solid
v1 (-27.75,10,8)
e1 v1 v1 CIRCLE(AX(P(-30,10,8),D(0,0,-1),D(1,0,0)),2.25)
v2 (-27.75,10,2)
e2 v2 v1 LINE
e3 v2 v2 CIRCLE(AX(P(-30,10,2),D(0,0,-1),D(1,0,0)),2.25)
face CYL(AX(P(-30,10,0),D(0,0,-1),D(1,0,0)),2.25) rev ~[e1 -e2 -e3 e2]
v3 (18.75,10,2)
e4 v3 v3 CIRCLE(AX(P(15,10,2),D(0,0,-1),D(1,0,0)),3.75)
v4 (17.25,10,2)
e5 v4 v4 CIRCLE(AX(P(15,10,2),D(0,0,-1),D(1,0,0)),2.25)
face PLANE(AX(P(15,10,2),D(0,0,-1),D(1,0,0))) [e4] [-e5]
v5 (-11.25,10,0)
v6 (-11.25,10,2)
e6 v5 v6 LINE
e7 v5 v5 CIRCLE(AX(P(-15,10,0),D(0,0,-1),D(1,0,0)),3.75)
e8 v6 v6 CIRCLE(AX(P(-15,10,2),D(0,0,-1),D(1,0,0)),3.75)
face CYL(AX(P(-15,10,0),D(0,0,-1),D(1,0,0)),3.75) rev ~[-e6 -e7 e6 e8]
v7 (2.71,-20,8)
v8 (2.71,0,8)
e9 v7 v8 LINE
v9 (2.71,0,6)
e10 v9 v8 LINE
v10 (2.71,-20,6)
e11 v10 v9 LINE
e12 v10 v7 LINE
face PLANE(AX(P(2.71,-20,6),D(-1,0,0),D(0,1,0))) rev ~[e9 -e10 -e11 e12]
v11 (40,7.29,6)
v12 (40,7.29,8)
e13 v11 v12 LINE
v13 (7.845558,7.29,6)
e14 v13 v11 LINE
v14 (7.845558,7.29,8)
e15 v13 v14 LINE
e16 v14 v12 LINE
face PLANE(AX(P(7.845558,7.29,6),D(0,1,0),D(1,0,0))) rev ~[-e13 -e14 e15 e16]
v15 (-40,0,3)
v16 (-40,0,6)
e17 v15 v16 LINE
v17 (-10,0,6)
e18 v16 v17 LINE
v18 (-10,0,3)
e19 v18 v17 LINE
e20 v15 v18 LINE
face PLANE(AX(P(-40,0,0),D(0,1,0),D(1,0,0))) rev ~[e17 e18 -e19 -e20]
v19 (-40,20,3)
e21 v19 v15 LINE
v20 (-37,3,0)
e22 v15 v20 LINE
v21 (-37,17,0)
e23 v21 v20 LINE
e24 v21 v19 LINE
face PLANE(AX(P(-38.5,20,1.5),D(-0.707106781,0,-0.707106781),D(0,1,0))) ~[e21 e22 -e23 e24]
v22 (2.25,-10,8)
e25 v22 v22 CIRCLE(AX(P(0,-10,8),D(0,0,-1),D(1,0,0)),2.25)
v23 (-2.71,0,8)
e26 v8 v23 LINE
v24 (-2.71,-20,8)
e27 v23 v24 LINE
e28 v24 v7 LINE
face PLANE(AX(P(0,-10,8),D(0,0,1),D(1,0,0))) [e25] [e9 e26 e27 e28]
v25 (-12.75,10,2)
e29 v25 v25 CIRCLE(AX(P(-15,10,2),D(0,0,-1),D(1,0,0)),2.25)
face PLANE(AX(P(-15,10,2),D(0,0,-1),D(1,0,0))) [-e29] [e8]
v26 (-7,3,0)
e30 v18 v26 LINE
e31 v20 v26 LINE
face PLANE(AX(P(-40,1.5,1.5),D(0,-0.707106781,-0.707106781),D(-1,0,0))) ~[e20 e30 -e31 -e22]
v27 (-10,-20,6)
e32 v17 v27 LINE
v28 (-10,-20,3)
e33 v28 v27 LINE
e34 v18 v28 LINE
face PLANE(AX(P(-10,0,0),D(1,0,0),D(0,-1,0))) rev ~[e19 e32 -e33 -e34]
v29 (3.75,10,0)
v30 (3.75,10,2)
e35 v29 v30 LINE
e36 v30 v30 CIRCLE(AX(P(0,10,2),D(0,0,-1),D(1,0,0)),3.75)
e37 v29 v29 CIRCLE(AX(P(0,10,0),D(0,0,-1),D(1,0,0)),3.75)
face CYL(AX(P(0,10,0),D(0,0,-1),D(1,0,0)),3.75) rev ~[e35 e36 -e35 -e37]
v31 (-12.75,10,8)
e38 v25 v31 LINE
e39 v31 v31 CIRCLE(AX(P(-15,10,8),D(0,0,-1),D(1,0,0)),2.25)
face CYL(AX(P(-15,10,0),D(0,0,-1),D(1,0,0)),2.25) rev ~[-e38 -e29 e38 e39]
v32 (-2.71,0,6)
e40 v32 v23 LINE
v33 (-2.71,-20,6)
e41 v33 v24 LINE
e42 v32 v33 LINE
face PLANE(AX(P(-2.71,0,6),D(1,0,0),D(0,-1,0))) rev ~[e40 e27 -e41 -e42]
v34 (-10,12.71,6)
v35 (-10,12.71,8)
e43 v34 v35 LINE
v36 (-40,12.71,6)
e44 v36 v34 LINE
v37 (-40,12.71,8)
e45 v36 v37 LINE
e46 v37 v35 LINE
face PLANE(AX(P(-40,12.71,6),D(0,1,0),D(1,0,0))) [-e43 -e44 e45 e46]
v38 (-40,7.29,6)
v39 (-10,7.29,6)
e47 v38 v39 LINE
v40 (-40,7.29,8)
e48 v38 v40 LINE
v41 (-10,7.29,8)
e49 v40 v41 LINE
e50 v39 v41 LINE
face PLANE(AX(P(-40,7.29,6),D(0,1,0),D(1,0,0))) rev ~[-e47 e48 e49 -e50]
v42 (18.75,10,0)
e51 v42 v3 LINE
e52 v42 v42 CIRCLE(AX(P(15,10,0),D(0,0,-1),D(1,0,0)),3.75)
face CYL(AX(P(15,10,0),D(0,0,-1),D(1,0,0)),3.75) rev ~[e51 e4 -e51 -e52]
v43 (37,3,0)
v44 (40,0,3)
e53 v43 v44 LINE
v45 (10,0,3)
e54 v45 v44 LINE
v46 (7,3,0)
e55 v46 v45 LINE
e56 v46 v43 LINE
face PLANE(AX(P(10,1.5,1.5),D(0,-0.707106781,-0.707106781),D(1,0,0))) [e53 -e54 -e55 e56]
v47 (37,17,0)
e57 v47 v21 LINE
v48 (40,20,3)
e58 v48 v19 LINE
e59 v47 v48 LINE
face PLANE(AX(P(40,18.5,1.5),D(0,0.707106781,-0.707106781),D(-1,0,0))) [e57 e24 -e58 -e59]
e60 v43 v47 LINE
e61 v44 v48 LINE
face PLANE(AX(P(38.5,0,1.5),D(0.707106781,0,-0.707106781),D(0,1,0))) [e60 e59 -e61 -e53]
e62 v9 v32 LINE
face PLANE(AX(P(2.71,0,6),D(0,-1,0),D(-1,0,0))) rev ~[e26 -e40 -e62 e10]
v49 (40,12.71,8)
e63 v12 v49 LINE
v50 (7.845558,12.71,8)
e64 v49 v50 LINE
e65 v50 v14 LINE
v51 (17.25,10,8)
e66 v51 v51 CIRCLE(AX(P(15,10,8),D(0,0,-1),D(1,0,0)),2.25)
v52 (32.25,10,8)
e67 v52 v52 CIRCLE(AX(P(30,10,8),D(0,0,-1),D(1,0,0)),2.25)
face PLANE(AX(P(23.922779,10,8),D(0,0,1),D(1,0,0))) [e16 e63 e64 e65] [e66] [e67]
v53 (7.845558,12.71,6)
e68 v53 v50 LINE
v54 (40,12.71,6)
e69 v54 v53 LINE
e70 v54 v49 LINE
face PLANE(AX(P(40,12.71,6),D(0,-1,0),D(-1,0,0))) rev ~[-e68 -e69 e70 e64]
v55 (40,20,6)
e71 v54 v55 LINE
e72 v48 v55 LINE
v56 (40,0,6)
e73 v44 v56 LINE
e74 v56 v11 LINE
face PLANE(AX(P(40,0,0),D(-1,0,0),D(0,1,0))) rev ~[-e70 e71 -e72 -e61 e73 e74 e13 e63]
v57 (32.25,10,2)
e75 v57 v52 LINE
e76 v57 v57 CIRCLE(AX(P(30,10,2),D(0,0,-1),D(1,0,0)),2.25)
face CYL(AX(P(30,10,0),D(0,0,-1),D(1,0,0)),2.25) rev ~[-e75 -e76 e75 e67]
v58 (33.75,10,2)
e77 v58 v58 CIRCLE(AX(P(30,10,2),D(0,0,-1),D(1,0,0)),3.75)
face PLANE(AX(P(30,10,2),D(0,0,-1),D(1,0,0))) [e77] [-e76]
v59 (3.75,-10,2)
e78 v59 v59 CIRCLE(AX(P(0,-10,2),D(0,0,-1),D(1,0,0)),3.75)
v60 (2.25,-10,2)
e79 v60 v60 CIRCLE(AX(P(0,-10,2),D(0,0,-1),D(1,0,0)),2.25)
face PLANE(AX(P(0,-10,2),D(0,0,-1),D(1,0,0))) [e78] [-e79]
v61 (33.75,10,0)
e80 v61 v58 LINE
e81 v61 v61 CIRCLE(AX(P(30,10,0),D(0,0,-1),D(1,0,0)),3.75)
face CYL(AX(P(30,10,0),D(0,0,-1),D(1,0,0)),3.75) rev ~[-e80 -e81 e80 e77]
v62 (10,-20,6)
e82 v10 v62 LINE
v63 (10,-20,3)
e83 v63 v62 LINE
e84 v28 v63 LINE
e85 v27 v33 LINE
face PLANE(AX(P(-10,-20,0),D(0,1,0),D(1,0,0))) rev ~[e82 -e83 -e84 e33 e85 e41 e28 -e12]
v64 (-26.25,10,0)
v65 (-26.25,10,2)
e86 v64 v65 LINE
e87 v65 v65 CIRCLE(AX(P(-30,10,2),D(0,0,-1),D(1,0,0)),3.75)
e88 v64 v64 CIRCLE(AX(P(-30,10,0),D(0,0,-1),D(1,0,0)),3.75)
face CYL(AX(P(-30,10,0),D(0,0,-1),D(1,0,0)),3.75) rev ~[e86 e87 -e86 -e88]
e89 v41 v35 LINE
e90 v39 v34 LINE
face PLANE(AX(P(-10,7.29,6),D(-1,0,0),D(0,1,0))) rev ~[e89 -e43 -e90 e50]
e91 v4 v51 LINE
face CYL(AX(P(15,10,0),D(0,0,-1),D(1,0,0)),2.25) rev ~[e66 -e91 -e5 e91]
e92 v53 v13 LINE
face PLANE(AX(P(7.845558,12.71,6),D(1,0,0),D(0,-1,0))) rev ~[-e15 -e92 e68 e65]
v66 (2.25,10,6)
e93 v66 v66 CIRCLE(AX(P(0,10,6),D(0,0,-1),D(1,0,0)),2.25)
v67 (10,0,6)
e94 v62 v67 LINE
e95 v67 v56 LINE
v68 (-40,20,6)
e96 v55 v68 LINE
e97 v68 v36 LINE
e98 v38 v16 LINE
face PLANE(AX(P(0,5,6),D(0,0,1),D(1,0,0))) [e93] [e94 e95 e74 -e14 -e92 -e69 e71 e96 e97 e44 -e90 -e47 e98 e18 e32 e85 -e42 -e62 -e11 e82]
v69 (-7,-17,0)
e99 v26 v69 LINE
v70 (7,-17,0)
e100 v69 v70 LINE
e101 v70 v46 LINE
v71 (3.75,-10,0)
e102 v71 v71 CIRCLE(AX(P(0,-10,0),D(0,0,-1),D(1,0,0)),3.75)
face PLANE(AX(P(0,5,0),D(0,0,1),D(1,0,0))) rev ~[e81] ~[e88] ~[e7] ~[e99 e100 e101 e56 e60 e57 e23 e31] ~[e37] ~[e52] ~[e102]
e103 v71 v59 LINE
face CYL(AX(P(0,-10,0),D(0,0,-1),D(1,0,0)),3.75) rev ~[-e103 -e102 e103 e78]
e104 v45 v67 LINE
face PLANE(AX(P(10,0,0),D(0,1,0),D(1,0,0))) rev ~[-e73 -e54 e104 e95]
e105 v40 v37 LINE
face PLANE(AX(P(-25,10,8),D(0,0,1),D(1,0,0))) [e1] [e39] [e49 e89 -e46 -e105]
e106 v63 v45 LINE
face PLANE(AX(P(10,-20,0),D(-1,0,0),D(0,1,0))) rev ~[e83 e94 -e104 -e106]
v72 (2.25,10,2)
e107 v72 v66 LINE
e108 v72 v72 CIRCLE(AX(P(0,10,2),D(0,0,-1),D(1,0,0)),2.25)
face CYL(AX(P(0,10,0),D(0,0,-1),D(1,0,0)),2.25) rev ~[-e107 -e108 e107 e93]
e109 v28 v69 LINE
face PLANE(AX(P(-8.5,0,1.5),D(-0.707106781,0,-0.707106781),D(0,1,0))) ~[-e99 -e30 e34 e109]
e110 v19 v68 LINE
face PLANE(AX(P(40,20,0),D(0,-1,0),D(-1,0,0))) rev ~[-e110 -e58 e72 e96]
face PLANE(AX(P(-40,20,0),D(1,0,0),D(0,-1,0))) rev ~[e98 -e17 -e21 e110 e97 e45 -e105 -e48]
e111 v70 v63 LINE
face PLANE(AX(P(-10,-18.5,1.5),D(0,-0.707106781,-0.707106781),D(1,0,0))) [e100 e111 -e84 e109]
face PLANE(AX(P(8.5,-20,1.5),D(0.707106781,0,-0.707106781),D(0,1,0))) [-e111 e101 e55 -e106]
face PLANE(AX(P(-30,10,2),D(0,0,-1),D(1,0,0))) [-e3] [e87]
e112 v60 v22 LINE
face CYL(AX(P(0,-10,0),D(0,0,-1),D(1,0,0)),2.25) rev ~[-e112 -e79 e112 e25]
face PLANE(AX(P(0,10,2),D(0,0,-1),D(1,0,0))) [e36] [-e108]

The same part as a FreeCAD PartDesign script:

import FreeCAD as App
import Part
import Sketcher
from FreeCAD import Vector


def edges_at(feature, points):
    """Names of the edges that pass closest to the given points."""
    edges = feature.Shape.Edges
    near = lambda p: min(range(len(edges)), key=lambda i: edges[i].distToShape(Part.Vertex(*p))[0])
    return sorted({f"Edge{near(p) + 1}" for p in points})

doc = App.newDocument("Part")
body = doc.addObject("PartDesign::Body", "Body")

# Sketch on XY plane
sketch1 = body.newObject("Sketcher::SketchObject", "Sketch")
sketch1.AttachmentSupport = (doc.getObject("XY_Plane"), [""])
sketch1.MapMode = "FlatFace"
sketch1.addGeometry([
    Part.LineSegment(Vector(-40, 0, 0), Vector(-10, 0, 0)),  # 0
    Part.LineSegment(Vector(-10, 0, 0), Vector(-10, -20, 0)),  # 1
    Part.LineSegment(Vector(-10, -20, 0), Vector(10, -20, 0)),  # 2
    Part.LineSegment(Vector(10, -20, 0), Vector(10, 0, 0)),  # 3
    Part.LineSegment(Vector(10, 0, 0), Vector(40, 0, 0)),  # 4
    Part.LineSegment(Vector(40, 0, 0), Vector(40, 20, 0)),  # 5
    Part.LineSegment(Vector(40, 20, 0), Vector(-40, 20, 0)),  # 6
    Part.LineSegment(Vector(-40, 20, 0), Vector(-40, 0, 0)),  # 7
], False)
sketch1.addConstraint([
    Sketcher.Constraint("Coincident", 0, 2, 1, 1),
    Sketcher.Constraint("Coincident", 1, 2, 2, 1),
    Sketcher.Constraint("Coincident", 2, 2, 3, 1),
    Sketcher.Constraint("Coincident", 3, 2, 4, 1),
    Sketcher.Constraint("Coincident", 4, 2, 5, 1),
    Sketcher.Constraint("Coincident", 5, 2, 6, 1),
    Sketcher.Constraint("Coincident", 6, 2, 7, 1),
    Sketcher.Constraint("Coincident", 7, 2, 0, 1),
    Sketcher.Constraint("Horizontal", 0),
    Sketcher.Constraint("Vertical", 1),
    Sketcher.Constraint("Horizontal", 2),
    Sketcher.Constraint("Vertical", 3),
    Sketcher.Constraint("Horizontal", 4),
    Sketcher.Constraint("Vertical", 5),
    Sketcher.Constraint("Horizontal", 6),
    Sketcher.Constraint("Vertical", 7),
    Sketcher.Constraint("Symmetric", 0, 2, 3, 2, -1, 1),
    Sketcher.Constraint("Symmetric", 4, 2, 7, 2, -2),
    Sketcher.Constraint("Equal", 2, 1),
    Sketcher.Constraint("Equal", 3, 5),
    Sketcher.Constraint("DistanceX", 0, 1, 0, 2, 30.0),
    Sketcher.Constraint("DistanceX", 2, 1, 2, 2, 20.0),
])
pad1 = body.newObject("PartDesign::Pad", "Pad")
pad1.Profile = sketch1
pad1.Length = 6

# Sketch on XY plane
sketch2 = body.newObject("Sketcher::SketchObject", "Sketch001")
sketch2.AttachmentSupport = (doc.getObject("XY_Plane"), [""])
sketch2.MapMode = "FlatFace"
sketch2.AttachmentOffset = App.Placement(Vector(0, 0, 6), App.Rotation())
sketch2.addGeometry([
    Part.LineSegment(Vector(2.71, 0, 0), Vector(-2.71, 0, 0)),  # 0
    Part.LineSegment(Vector(-2.71, 0, 0), Vector(-2.71, -20, 0)),  # 1
    Part.LineSegment(Vector(-2.71, -20, 0), Vector(2.71, -20, 0)),  # 2
    Part.LineSegment(Vector(2.71, -20, 0), Vector(2.71, 0, 0)),  # 3
    Part.LineSegment(Vector(7.845558, 12.71, 0), Vector(7.845558, 7.29, 0)),  # 4
    Part.LineSegment(Vector(7.845558, 7.29, 0), Vector(40, 7.29, 0)),  # 5
    Part.LineSegment(Vector(40, 7.29, 0), Vector(40, 12.71, 0)),  # 6
    Part.LineSegment(Vector(40, 12.71, 0), Vector(7.845558, 12.71, 0)),  # 7
    Part.LineSegment(Vector(-40, 12.71, 0), Vector(-40, 7.29, 0)),  # 8
    Part.LineSegment(Vector(-40, 7.29, 0), Vector(-10, 7.29, 0)),  # 9
    Part.LineSegment(Vector(-10, 7.29, 0), Vector(-10, 12.71, 0)),  # 10
    Part.LineSegment(Vector(-10, 12.71, 0), Vector(-40, 12.71, 0)),  # 11
], False)
sketch2.addConstraint([
    Sketcher.Constraint("Coincident", 0, 2, 1, 1),
    Sketcher.Constraint("Coincident", 1, 2, 2, 1),
    Sketcher.Constraint("Coincident", 2, 2, 3, 1),
    Sketcher.Constraint("Coincident", 3, 2, 0, 1),
    Sketcher.Constraint("Coincident", 4, 2, 5, 1),
    Sketcher.Constraint("Coincident", 5, 2, 6, 1),
    Sketcher.Constraint("Coincident", 6, 2, 7, 1),
    Sketcher.Constraint("Coincident", 7, 2, 4, 1),
    Sketcher.Constraint("Coincident", 8, 2, 9, 1),
    Sketcher.Constraint("Coincident", 9, 2, 10, 1),
    Sketcher.Constraint("Coincident", 10, 2, 11, 1),
    Sketcher.Constraint("Coincident", 11, 2, 8, 1),
    Sketcher.Constraint("Horizontal", 0),
    Sketcher.Constraint("Vertical", 1),
    Sketcher.Constraint("Horizontal", 2),
    Sketcher.Constraint("Vertical", 3),
    Sketcher.Constraint("Vertical", 4),
    Sketcher.Constraint("Horizontal", 5),
    Sketcher.Constraint("Vertical", 6),
    Sketcher.Constraint("Horizontal", 7),
    Sketcher.Constraint("Vertical", 8),
    Sketcher.Constraint("Horizontal", 9),
    Sketcher.Constraint("Vertical", 10),
    Sketcher.Constraint("Horizontal", 11),
    Sketcher.Constraint("Symmetric", 0, 2, 3, 2, -1, 1),
    Sketcher.Constraint("Symmetric", 5, 2, 8, 2, -2),
    Sketcher.Constraint("Horizontal", 7, 2, 10, 2),
    Sketcher.Constraint("Equal", 2, 4),
    Sketcher.Constraint("DistanceX", 9, 1, 9, 2, 30.0),
    Sketcher.Constraint("DistanceY", 1, 2, 1, 1, 20.0),
    Sketcher.Constraint("DistanceX", -1, 1, 5, 2, 40.0),
    Sketcher.Constraint("DistanceX", 0, 2, 0, 1, 5.42),
    Sketcher.Constraint("DistanceY", -1, 1, 4, 2, 7.29),
    Sketcher.Constraint("DistanceX", 5, 1, 5, 2, 32.154442),
])
pad2 = body.newObject("PartDesign::Pad", "Pad001")
pad2.Profile = sketch2
pad2.Length = 2

# Sketch on XY plane
sketch3 = body.newObject("Sketcher::SketchObject", "Sketch002")
sketch3.AttachmentSupport = (doc.getObject("XY_Plane"), [""])
sketch3.MapMode = "FlatFace"
sketch3.addGeometry([
    Part.Circle(Vector(-30, 10, 0), Vector(0, 0, 1), 2.25),  # 0
    Part.Circle(Vector(0, 10, 0), Vector(0, 0, 1), 2.25),  # 1
    Part.Circle(Vector(0, -10, 0), Vector(0, 0, 1), 2.25),  # 2
    Part.Circle(Vector(30, 10, 0), Vector(0, 0, 1), 2.25),  # 3
    Part.Circle(Vector(15, 10, 0), Vector(0, 0, 1), 2.25),  # 4
    Part.Circle(Vector(-15, 10, 0), Vector(0, 0, 1), 2.25),  # 5
], False)
sketch3.addConstraint([
    Sketcher.Constraint("Equal", 0, 1),
    Sketcher.Constraint("Equal", 1, 2),
    Sketcher.Constraint("Equal", 2, 3),
    Sketcher.Constraint("Equal", 3, 4),
    Sketcher.Constraint("Equal", 4, 5),
    Sketcher.Constraint("Symmetric", 1, 3, 2, 3, -1, 1),
    Sketcher.Constraint("Symmetric", 0, 3, 3, 3, -2),
    Sketcher.Constraint("Symmetric", 4, 3, 5, 3, -2),
    Sketcher.Constraint("PointOnObject", 1, 3, -2),
    Sketcher.Constraint("Horizontal", 0, 3, 1, 3),
    Sketcher.Constraint("Horizontal", 3, 3, 4, 3),
    Sketcher.Constraint("Diameter", 0, 4.5),
    Sketcher.Constraint("DistanceX", 0, 3, -1, 1, 30.0),
    Sketcher.Constraint("DistanceY", -1, 1, 0, 3, 10.0),
    Sketcher.Constraint("DistanceX", -1, 1, 4, 3, 15.0),
])
pocket1 = body.newObject("PartDesign::Pocket", "Pocket")
pocket1.Profile = sketch3
pocket1.Type = "ThroughAll"
pocket1.Reversed = True

# Sketch on XY plane
sketch4 = body.newObject("Sketcher::SketchObject", "Sketch003")
sketch4.AttachmentSupport = (doc.getObject("XY_Plane"), [""])
sketch4.MapMode = "FlatFace"
sketch4.addGeometry([
    Part.Circle(Vector(0, -10, 0), Vector(0, 0, 1), 3.75),  # 0
    Part.Circle(Vector(0, 10, 0), Vector(0, 0, 1), 3.75),  # 1
    Part.Circle(Vector(30, 10, 0), Vector(0, 0, 1), 3.75),  # 2
    Part.Circle(Vector(-30, 10, 0), Vector(0, 0, 1), 3.75),  # 3
    Part.Circle(Vector(-15, 10, 0), Vector(0, 0, 1), 3.75),  # 4
    Part.Circle(Vector(15, 10, 0), Vector(0, 0, 1), 3.75),  # 5
], False)
sketch4.addConstraint([
    Sketcher.Constraint("Equal", 0, 1),
    Sketcher.Constraint("Equal", 1, 2),
    Sketcher.Constraint("Equal", 2, 3),
    Sketcher.Constraint("Equal", 3, 4),
    Sketcher.Constraint("Equal", 4, 5),
    Sketcher.Constraint("Symmetric", 0, 3, 1, 3, -1, 1),
    Sketcher.Constraint("Symmetric", 2, 3, 3, 3, -2),
    Sketcher.Constraint("Symmetric", 4, 3, 5, 3, -2),
    Sketcher.Constraint("PointOnObject", 0, 3, -2),
    Sketcher.Constraint("Horizontal", 1, 3, 2, 3),
    Sketcher.Constraint("Horizontal", 3, 3, 4, 3),
    Sketcher.Constraint("Diameter", 0, 7.5),
    Sketcher.Constraint("DistanceY", 0, 3, -1, 1, 10.0),
    Sketcher.Constraint("DistanceX", -1, 1, 2, 3, 30.0),
    Sketcher.Constraint("DistanceX", 4, 3, -1, 1, 15.0),
])
pocket2 = body.newObject("PartDesign::Pocket", "Pocket001")
pocket2.Profile = sketch4
pocket2.Length = 2
pocket2.Reversed = True
doc.recompute()

chamfer = body.newObject("PartDesign::Chamfer", "Chamfer")
chamfer.Base = (pocket2, edges_at(pocket2, [
    (-10, -10, 0),
    (-25, 0, 0),
    (10, -10, 0),
    (25, 0, 0),
    (0, 20, 0),
    (40, 10, 0),
    (-40, 10, 0),
    (0, -20, 0),
]))
chamfer.Size = 3

doc.recompute()
